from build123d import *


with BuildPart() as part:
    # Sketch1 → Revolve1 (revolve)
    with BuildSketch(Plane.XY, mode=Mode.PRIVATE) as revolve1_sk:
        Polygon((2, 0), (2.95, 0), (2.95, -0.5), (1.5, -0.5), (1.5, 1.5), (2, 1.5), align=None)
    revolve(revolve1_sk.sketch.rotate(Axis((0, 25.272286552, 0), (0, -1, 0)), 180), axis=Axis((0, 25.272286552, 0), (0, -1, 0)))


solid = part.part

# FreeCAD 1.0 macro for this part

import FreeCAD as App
import Part
import Sketcher

V = App.Vector
Q = App.Units.Quantity


def add_polygon(sketch, points):
    """Adds a closed chain of lines whose ends are joined by coincident constraints."""
    first, n = sketch.GeometryCount, len(points)
    for a, b in zip(points, points[1:] + points[:1]):
        sketch.addGeometry(Part.LineSegment(App.Vector(*a, 0), App.Vector(*b, 0)), False)
    for i in range(n):
        sketch.addConstraint(Sketcher.Constraint("Coincident", first + i, 2, first + (i + 1) % n, 1))

doc = App.newDocument("Part")
params = doc.addObject("Spreadsheet::Sheet", "Params")
for row, (alias, value) in enumerate([
    ("sketch1_height", "2 mm"),
    ("sketch1_width", "0.5 mm"),
    ("sketch1_width2", "0.95 mm"),
    ("revolution_angle", "360 deg"),
], start=1):
    params.set(f"A{row}", alias)
    params.set(f"B{row}", "=" + value)
    params.setAlias(f"B{row}", alias)

body = doc.addObject("PartDesign::Body", "Body")

# Sketch on XY plane
sketch1 = body.newObject("Sketcher::SketchObject", "Sketch")
sketch1.AttachmentSupport = (doc.getObject("XY_Plane"), [""])
sketch1.MapMode = "FlatFace"
add_polygon(sketch1, [(3, 0), (2, 0), (2, 1.5), (1.5, 1.5), (1.5, -0.5), (3, -0.5)])  # lines 0-5
sketch1.addConstraint([
    Sketcher.Constraint("Horizontal", 0),
    Sketcher.Constraint("Vertical", 1),
    Sketcher.Constraint("Horizontal", 2),
    Sketcher.Constraint("Vertical", 3),
    Sketcher.Constraint("Horizontal", 4),
    Sketcher.Constraint("Vertical", 5),
    Sketcher.Constraint("PointOnObject", 0, 2, -1),
    Sketcher.Constraint("Equal", 2, 5),
    Sketcher.Constraint("DistanceY", 3, 2, 3, 1, Q("2 mm")),
    Sketcher.Constraint("DistanceX", 2, 2, 2, 1, Q("0.5 mm")),
    Sketcher.Constraint("DistanceX", -1, 1, 0, 2, Q("2 mm")),
    Sketcher.Constraint("DistanceX", 0, 2, 0, 1, Q("0.95 mm")),
])
sketch1.setExpression("Constraints[14]", "Params.sketch1_height")
sketch1.setExpression("Constraints[15]", "Params.sketch1_width")
sketch1.setExpression("Constraints[17]", "Params.sketch1_width2")
revolution = body.newObject("PartDesign::Revolution", "Revolution")
revolution.Profile = sketch1
revolution.ReferenceAxis = (sketch1, ["V_Axis"])
revolution.setExpression("Angle", "Params.revolution_angle")

doc.recompute()
